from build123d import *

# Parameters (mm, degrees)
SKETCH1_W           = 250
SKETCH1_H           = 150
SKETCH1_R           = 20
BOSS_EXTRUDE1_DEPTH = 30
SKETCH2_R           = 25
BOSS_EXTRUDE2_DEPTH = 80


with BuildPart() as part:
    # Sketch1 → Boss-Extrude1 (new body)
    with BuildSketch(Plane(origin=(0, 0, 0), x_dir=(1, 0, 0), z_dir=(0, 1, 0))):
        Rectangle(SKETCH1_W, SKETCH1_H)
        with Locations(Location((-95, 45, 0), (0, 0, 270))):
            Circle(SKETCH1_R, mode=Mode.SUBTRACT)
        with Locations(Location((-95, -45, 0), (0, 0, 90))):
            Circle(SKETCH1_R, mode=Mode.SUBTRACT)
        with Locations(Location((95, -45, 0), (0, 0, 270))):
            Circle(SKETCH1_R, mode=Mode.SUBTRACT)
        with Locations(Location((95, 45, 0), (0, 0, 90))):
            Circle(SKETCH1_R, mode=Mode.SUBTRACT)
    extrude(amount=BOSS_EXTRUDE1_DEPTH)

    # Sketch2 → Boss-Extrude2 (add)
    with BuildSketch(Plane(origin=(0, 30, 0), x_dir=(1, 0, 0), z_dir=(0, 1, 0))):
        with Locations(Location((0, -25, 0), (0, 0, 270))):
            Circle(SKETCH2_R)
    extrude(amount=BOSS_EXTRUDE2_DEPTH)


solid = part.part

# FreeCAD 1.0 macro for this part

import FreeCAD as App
import Part
import Sketcher

V = App.Vector
Q = App.Units.Quantity


def add_polygon(sketch, points):
    """Adds a closed chain of lines whose ends are joined by coincident constraints."""
    first, n = sketch.GeometryCount, len(points)
    for a, b in zip(points, points[1:] + points[:1]):
        sketch.addGeometry(Part.LineSegment(App.Vector(*a, 0), App.Vector(*b, 0)), False)
    for i in range(n):
        sketch.addConstraint(Sketcher.Constraint("Coincident", first + i, 2, first + (i + 1) % n, 1))

doc = App.newDocument("Part")
body = doc.addObject("PartDesign::Body", "Body")

sketch1 = doc.addObject("Sketcher::SketchObject", "Sketch")
body.addObject(sketch1)
sketch1.AttachmentSupport = (doc.XZ_Plane, [""])
sketch1.MapMode = "FlatFace"
add_polygon(sketch1, [(-125, -75), (-125, 75), (125, 75), (125, -75)])
sketch1.addGeometry(Part.Circle(V(-95, 45, 0), V(0, 0, 1), 20), False)
sketch1.addGeometry(Part.Circle(V(95, 45, 0), V(0, 0, 1), 20), False)
sketch1.addGeometry(Part.Circle(V(-95, -45, 0), V(0, 0, 1), 20), False)
sketch1.addGeometry(Part.Circle(V(95, -45, 0), V(0, 0, 1), 20), False)
sketch1.addConstraint([
    Sketcher.Constraint("Vertical", 0),
    Sketcher.Constraint("Horizontal", 1),
    Sketcher.Constraint("Vertical", 2),
    Sketcher.Constraint("Horizontal", 3),
    Sketcher.Constraint("Equal", 4, 5),
    Sketcher.Constraint("Equal", 5, 6),
    Sketcher.Constraint("Equal", 6, 7),
    Sketcher.Constraint("Symmetric", 5, 3, 6, 3, -1, 1),
    Sketcher.Constraint("Symmetric", 4, 3, 7, 3, -1, 1),
    Sketcher.Constraint("Symmetric", 0, 2, 2, 2, -1, 1),
    Sketcher.Constraint("Symmetric", 4, 3, 5, 3, -2),
    Sketcher.Constraint("Diameter", 4, Q("40 mm")),
    Sketcher.Constraint("DistanceX", 1, 1, 1, 2, Q("250 mm")),
    Sketcher.Constraint("DistanceY", 0, 1, 0, 2, Q("150 mm")),
    Sketcher.Constraint("DistanceX", 4, 3, -1, 1, Q("95 mm")),
    Sketcher.Constraint("DistanceY", -1, 1, 4, 3, Q("45 mm")),
])
pad1 = doc.addObject("PartDesign::Pad", "Pad")
body.addObject(pad1)
pad1.Profile = sketch1
pad1.Length = 30
pad1.Reversed = True

sketch2 = doc.addObject("Sketcher::SketchObject", "Sketch001")
body.addObject(sketch2)
sketch2.AttachmentSupport = (doc.XZ_Plane, [""])
sketch2.MapMode = "FlatFace"
sketch2.AttachmentOffset = App.Placement(V(0, 0, -30), App.Rotation())
sketch2.addGeometry(Part.Circle(V(0, 25, 0), V(0, 0, 1), 25), False)
sketch2.addConstraint([
    Sketcher.Constraint("PointOnObject", 0, 3, -2),
    Sketcher.Constraint("Diameter", 0, Q("50 mm")),
    Sketcher.Constraint("DistanceY", -1, 1, 0, 3, Q("25 mm")),
])
pad2 = doc.addObject("PartDesign::Pad", "Pad001")
body.addObject(pad2)
pad2.Profile = sketch2
pad2.Length = 80
pad2.Reversed = True

doc.recompute()
